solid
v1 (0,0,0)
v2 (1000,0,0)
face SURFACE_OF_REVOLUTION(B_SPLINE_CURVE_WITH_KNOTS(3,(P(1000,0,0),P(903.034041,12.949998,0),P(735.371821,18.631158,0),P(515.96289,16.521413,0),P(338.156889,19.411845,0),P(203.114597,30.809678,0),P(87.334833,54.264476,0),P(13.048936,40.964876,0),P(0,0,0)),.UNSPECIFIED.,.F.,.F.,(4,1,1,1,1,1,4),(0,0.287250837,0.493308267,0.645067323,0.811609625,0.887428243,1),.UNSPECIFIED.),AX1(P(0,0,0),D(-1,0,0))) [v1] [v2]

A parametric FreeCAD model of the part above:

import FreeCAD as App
import Part
import Sketcher

V = App.Vector

doc = App.newDocument("Part")
body = doc.addObject("PartDesign::Body", "Body")

# Sketch on XY plane
sketch1 = body.newObject("Sketcher::SketchObject", "Sketch")
sketch1.AttachmentSupport = (doc.getObject("XY_Plane"), [""])
sketch1.MapMode = "FlatFace"
sketch1.addGeometry([
    Part.LineSegment(V(0, 0, 0), V(1000, 0, 0)),
    Part.BSplineCurve([V(0, 0, 0), V(13.048936, 40.964876, 0), V(87.334833, 54.264476, 0), V(203.114597, 30.809678, 0), V(338.156889, 19.411845, 0), V(515.96289, 16.521413, 0), V(735.371821, 18.631158, 0), V(903.034041, 12.949998, 0), V(1000, 0, 0)], [4, 1, 1, 1, 1, 1, 4], [0, 0.112571757, 0.188390375, 0.354932677, 0.506691733, 0.712749163, 1], False, 3, [1, 1, 1, 1, 1, 1, 1, 1, 1], False),
], False)
sketch1.addConstraint([
    Sketcher.Constraint("Block", 1),
    Sketcher.Constraint("Coincident", 0, 1, 1, 1),
    Sketcher.Constraint("Coincident", 1, 2, 0, 2),
])
revolution = body.newObject("PartDesign::Revolution", "Revolution")
revolution.Profile = sketch1
revolution.ReferenceAxis = (sketch1, ["H_Axis"])
revolution.Angle = 360

doc.recompute()
